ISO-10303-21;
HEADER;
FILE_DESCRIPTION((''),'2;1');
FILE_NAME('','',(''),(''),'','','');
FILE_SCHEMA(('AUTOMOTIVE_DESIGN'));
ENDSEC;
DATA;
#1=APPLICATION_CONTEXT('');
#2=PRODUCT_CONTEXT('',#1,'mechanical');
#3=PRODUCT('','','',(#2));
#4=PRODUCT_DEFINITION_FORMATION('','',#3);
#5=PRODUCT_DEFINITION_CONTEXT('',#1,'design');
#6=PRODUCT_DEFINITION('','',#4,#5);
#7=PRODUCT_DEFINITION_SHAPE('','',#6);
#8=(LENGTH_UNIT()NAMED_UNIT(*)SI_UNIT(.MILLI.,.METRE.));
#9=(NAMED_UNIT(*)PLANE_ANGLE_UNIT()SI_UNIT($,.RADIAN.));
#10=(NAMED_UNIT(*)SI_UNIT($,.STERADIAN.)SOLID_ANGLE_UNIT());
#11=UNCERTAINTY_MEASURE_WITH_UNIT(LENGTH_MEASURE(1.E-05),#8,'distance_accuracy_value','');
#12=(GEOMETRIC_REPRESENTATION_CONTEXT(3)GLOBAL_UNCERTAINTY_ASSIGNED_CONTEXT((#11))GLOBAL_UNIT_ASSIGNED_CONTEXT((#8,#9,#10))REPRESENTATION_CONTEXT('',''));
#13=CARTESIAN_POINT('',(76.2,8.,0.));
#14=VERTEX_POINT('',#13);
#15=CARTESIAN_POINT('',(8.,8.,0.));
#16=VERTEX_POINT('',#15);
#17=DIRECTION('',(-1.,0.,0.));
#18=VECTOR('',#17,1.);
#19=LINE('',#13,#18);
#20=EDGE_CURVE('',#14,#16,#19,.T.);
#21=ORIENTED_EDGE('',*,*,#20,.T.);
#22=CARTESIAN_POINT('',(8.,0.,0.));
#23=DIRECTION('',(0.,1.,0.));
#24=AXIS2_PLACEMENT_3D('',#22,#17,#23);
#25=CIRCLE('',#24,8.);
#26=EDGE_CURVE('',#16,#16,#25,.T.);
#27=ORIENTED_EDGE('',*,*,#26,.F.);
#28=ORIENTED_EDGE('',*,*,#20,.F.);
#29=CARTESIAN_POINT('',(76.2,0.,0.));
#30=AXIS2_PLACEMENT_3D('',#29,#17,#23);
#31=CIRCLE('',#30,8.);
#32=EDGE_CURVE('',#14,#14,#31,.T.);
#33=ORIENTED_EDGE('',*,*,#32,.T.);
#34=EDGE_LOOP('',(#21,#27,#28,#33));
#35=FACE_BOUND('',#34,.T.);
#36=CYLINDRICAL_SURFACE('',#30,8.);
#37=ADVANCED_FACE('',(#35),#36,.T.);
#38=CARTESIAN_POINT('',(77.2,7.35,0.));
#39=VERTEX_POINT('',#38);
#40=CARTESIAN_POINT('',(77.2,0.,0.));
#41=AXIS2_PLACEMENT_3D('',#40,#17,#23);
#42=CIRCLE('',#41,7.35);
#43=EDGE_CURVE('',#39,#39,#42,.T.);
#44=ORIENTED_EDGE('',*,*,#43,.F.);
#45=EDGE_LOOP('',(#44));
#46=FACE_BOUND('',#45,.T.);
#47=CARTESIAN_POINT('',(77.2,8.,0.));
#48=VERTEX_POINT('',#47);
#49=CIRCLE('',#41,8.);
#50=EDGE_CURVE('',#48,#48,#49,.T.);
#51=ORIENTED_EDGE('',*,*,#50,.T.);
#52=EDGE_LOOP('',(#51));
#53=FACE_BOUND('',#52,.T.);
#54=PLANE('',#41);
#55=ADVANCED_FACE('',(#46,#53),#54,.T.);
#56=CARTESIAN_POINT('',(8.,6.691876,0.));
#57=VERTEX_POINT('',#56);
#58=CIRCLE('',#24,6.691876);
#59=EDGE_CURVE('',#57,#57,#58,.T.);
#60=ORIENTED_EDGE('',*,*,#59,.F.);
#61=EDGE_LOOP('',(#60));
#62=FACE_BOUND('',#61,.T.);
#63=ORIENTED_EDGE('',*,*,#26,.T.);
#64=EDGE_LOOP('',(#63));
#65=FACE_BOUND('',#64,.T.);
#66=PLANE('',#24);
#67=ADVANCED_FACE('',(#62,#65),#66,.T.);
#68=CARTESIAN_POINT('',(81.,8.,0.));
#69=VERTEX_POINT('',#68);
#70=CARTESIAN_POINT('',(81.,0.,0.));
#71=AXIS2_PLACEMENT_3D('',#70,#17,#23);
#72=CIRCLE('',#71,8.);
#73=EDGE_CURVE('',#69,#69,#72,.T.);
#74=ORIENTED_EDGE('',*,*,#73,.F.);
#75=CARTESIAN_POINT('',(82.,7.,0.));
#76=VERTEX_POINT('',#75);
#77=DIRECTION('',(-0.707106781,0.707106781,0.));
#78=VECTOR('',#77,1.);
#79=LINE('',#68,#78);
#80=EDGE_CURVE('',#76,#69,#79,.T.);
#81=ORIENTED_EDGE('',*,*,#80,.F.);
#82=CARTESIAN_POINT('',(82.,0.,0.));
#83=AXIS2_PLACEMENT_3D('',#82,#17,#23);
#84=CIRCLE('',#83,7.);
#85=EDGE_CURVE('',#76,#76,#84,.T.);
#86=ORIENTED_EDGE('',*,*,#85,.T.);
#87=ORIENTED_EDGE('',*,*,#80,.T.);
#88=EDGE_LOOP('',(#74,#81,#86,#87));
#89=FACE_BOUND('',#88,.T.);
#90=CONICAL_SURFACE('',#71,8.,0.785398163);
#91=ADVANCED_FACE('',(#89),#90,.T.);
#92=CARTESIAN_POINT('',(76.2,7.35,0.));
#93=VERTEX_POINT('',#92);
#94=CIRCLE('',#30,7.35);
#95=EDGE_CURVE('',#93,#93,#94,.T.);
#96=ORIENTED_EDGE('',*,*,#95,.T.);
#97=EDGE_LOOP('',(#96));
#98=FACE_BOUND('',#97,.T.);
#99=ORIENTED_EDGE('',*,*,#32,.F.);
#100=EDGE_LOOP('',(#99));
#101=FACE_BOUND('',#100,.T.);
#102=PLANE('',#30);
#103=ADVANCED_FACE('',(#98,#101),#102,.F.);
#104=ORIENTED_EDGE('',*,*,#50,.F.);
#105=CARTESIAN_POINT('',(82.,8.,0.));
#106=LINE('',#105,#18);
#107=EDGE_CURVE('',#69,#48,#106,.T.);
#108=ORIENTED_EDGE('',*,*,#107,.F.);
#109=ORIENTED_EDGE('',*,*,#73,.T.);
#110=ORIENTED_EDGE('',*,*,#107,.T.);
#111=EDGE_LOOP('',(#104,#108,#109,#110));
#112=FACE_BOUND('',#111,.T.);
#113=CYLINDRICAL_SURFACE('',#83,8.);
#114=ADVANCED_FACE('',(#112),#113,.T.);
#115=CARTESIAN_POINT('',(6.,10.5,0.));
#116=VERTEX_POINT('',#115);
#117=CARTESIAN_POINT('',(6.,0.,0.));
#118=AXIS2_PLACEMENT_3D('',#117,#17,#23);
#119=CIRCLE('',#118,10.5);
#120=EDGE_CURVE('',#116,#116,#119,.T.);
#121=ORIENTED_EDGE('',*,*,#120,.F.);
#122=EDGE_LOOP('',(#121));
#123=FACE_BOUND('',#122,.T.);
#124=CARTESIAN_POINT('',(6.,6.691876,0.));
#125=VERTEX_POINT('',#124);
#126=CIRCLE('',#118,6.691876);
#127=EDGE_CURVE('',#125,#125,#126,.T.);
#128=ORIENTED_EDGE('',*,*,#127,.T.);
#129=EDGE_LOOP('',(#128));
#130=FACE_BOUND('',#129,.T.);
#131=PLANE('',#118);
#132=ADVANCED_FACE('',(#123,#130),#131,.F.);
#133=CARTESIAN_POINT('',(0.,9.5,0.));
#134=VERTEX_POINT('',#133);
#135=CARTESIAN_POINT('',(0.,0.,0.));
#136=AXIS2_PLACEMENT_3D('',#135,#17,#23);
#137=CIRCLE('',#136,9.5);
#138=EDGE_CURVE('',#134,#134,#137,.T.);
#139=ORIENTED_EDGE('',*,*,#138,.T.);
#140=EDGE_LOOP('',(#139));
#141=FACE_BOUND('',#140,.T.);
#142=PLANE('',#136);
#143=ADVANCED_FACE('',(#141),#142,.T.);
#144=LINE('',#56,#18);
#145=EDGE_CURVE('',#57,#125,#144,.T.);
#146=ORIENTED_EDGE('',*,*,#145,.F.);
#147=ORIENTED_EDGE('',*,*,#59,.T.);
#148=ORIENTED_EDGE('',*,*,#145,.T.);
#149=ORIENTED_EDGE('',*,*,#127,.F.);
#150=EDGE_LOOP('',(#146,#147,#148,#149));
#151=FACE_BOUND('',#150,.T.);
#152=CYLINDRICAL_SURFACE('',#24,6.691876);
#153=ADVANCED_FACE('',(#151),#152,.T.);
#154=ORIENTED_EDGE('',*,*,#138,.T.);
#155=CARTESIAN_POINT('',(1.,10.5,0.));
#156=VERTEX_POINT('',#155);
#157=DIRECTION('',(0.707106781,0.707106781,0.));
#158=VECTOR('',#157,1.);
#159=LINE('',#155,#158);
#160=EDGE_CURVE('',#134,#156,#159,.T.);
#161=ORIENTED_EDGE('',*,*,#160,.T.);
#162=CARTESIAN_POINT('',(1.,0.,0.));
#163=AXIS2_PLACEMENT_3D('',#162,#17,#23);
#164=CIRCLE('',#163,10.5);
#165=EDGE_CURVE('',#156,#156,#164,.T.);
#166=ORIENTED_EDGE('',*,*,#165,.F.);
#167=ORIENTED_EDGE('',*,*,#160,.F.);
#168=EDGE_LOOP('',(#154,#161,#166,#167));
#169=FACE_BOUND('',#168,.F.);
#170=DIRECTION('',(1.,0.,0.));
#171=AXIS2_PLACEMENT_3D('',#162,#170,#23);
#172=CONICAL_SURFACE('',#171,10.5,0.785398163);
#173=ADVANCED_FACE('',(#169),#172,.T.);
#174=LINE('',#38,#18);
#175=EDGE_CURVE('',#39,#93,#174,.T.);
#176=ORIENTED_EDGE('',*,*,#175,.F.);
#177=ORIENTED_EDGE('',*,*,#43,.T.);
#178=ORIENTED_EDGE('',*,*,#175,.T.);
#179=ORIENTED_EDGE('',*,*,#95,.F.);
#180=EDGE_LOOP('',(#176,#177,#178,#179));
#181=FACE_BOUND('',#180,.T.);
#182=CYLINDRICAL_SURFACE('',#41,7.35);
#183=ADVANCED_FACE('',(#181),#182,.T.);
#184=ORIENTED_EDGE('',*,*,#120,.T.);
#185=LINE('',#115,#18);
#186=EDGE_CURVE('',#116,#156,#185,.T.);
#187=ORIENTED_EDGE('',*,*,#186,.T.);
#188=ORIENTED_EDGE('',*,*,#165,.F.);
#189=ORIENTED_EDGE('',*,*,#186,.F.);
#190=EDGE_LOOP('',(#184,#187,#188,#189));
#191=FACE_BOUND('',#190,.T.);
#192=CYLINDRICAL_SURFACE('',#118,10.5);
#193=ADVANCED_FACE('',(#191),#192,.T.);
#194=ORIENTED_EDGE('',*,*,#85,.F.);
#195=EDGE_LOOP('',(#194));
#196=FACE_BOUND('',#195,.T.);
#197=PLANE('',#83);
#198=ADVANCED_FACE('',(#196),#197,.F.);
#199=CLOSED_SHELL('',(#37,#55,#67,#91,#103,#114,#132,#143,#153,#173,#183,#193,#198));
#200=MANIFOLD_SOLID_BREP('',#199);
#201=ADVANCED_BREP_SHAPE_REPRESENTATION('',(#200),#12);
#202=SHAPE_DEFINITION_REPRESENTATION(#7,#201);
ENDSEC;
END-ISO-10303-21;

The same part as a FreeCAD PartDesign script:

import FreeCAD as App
import Part
import Sketcher


def edges_at(feature, points):
    """Names of the edges that pass closest to the given points."""
    edges = feature.Shape.Edges
    near = lambda p: min(range(len(edges)), key=lambda i: edges[i].distToShape(Part.Vertex(*p))[0])
    return sorted({f"Edge{near(p) + 1}" for p in points})

doc = App.newDocument("Part")
body = doc.addObject("PartDesign::Body", "Body")

# Sketch on XY plane
sketch1 = doc.addObject("Sketcher::SketchObject", "Sketch")
body.addObject(sketch1)
sketch1.AttachmentSupport = (doc.XY_Plane, [""])
sketch1.MapMode = "FlatFace"
sketch1.addGeometry(Part.LineSegment(App.Vector(0, 10.5, 0), App.Vector(0, 0, 0)), False)
sketch1.addGeometry(Part.LineSegment(App.Vector(0, 0, 0), App.Vector(82, 0, 0)), False)
sketch1.addGeometry(Part.LineSegment(App.Vector(82, 0, 0), App.Vector(82, 8, 0)), False)
sketch1.addGeometry(Part.LineSegment(App.Vector(82, 8, 0), App.Vector(77.2, 8, 0)), False)
sketch1.addGeometry(Part.LineSegment(App.Vector(77.2, 8, 0), App.Vector(77.2, 7.35, 0)), False)
sketch1.addGeometry(Part.LineSegment(App.Vector(77.2, 7.35, 0), App.Vector(76.2, 7.35, 0)), False)
sketch1.addGeometry(Part.LineSegment(App.Vector(76.2, 7.35, 0), App.Vector(76.2, 8, 0)), False)
sketch1.addGeometry(Part.LineSegment(App.Vector(76.2, 8, 0), App.Vector(8, 8, 0)), False)
sketch1.addGeometry(Part.LineSegment(App.Vector(8, 8, 0), App.Vector(8, 6.691876, 0)), False)
sketch1.addGeometry(Part.LineSegment(App.Vector(8, 6.691876, 0), App.Vector(6, 6.691876, 0)), False)
sketch1.addGeometry(Part.LineSegment(App.Vector(6, 6.691876, 0), App.Vector(6, 10.5, 0)), False)
sketch1.addGeometry(Part.LineSegment(App.Vector(6, 10.5, 0), App.Vector(0, 10.5, 0)), False)
sketch1.addConstraint(Sketcher.Constraint("Coincident", 0, 2, 1, 1))
sketch1.addConstraint(Sketcher.Constraint("Coincident", 1, 2, 2, 1))
sketch1.addConstraint(Sketcher.Constraint("Coincident", 2, 2, 3, 1))
sketch1.addConstraint(Sketcher.Constraint("Coincident", 3, 2, 4, 1))
sketch1.addConstraint(Sketcher.Constraint("Coincident", 4, 2, 5, 1))
sketch1.addConstraint(Sketcher.Constraint("Coincident", 5, 2, 6, 1))
sketch1.addConstraint(Sketcher.Constraint("Coincident", 6, 2, 7, 1))
sketch1.addConstraint(Sketcher.Constraint("Coincident", 7, 2, 8, 1))
sketch1.addConstraint(Sketcher.Constraint("Coincident", 8, 2, 9, 1))
sketch1.addConstraint(Sketcher.Constraint("Coincident", 9, 2, 10, 1))
sketch1.addConstraint(Sketcher.Constraint("Coincident", 10, 2, 11, 1))
sketch1.addConstraint(Sketcher.Constraint("Coincident", 11, 2, 0, 1))
sketch1.addConstraint(Sketcher.Constraint("Vertical", 0))
sketch1.addConstraint(Sketcher.Constraint("Horizontal", 1))
sketch1.addConstraint(Sketcher.Constraint("Vertical", 2))
sketch1.addConstraint(Sketcher.Constraint("Horizontal", 3))
sketch1.addConstraint(Sketcher.Constraint("Vertical", 4))
sketch1.addConstraint(Sketcher.Constraint("Horizontal", 5))
sketch1.addConstraint(Sketcher.Constraint("Vertical", 6))
sketch1.addConstraint(Sketcher.Constraint("Horizontal", 7))
sketch1.addConstraint(Sketcher.Constraint("Vertical", 8))
sketch1.addConstraint(Sketcher.Constraint("Horizontal", 9))
sketch1.addConstraint(Sketcher.Constraint("Vertical", 10))
sketch1.addConstraint(Sketcher.Constraint("Horizontal", 11))
sketch1.addConstraint(Sketcher.Constraint("Coincident", 0, 2, -1, 1))
sketch1.addConstraint(Sketcher.Constraint("Horizontal", 3, 2, 6, 2))
sketch1.addConstraint(Sketcher.Constraint("DistanceX", 1, 1, 1, 2, 82.0))
sketch1.addConstraint(Sketcher.Constraint("DistanceX", 5, 2, 5, 1, 1.0))
sketch1.addConstraint(Sketcher.Constraint("DistanceX", 9, 2, 9, 1, 2.0))
sketch1.addConstraint(Sketcher.Constraint("DistanceX", 11, 2, 11, 1, 6.0))
sketch1.addConstraint(Sketcher.Constraint("DistanceY", 2, 1, 2, 2, 8.0))
sketch1.addConstraint(Sketcher.Constraint("DistanceX", 3, 2, 3, 1, 4.8))
sketch1.addConstraint(Sketcher.Constraint("DistanceY", 0, 2, 0, 1, 10.5))
sketch1.addConstraint(Sketcher.Constraint("DistanceY", 4, 2, 4, 1, 0.65))
sketch1.addConstraint(Sketcher.Constraint("DistanceY", 8, 2, 8, 1, 1.308124))
revolution = doc.addObject("PartDesign::Revolution", "Revolution")
body.addObject(revolution)
revolution.Profile = sketch1
revolution.ReferenceAxis = (sketch1, ["H_Axis"])
revolution.Angle = 360
doc.recompute()

chamfer = doc.addObject("PartDesign::Chamfer", "Chamfer")
body.addObject(chamfer)
chamfer.Base = (revolution, edges_at(revolution, [(82, -8, 0), (0, -10.5, 0)]))
chamfer.Size = 1

doc.recompute()
